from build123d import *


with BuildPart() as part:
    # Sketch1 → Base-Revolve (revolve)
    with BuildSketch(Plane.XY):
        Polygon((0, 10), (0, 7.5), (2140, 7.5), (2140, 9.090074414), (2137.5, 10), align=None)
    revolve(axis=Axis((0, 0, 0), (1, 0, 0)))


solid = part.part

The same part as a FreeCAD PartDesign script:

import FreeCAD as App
import Part
import Sketcher

V = App.Vector
Q = App.Units.Quantity

doc = App.newDocument("Part")
body = doc.addObject("PartDesign::Body", "Body")

sketch1 = doc.addObject("Sketcher::SketchObject", "Sketch")
body.addObject(sketch1)
sketch1.AttachmentSupport = (doc.XY_Plane, [""])
sketch1.MapMode = "FlatFace"
sketch1.addGeometry([
    Part.LineSegment(V(0, 10, 0), V(0, 7.5, 0)),
    Part.LineSegment(V(0, 7.5, 0), V(2140, 7.5, 0)),
    Part.LineSegment(V(2140, 7.5, 0), V(2140, 9.1, 0)),
    Part.LineSegment(V(2140, 9.1, 0), V(2137.5, 10, 0)),
    Part.LineSegment(V(2137.5, 10, 0), V(0, 10, 0)),
], False)
sketch1.addConstraint([
    Sketcher.Constraint("Coincident", 0, 2, 1, 1),
    Sketcher.Constraint("Coincident", 1, 2, 2, 1),
    Sketcher.Constraint("Coincident", 2, 2, 3, 1),
    Sketcher.Constraint("Coincident", 3, 2, 4, 1),
    Sketcher.Constraint("Coincident", 4, 2, 0, 1),
    Sketcher.Constraint("Vertical", 0),
    Sketcher.Constraint("Horizontal", 1),
    Sketcher.Constraint("Vertical", 2),
    Sketcher.Constraint("Horizontal", 4),
    Sketcher.Constraint("PointOnObject", 0, 2, -2),
    Sketcher.Constraint("DistanceX", 1, 1, 1, 2, 2140.0),
    Sketcher.Constraint("Angle", 3, Q("160 deg")),
    Sketcher.Constraint("DistanceX", 4, 2, 4, 1, 2137.5),
    Sketcher.Constraint("DistanceY", 0, 2, 0, 1, 2.5),
    Sketcher.Constraint("DistanceY", -1, 1, 3, 2, 10.0),
])
revolution = doc.addObject("PartDesign::Revolution", "Revolution")
body.addObject(revolution)
revolution.Profile = sketch1
revolution.ReferenceAxis = (sketch1, ["H_Axis"])
revolution.Angle = 360

doc.recompute()
